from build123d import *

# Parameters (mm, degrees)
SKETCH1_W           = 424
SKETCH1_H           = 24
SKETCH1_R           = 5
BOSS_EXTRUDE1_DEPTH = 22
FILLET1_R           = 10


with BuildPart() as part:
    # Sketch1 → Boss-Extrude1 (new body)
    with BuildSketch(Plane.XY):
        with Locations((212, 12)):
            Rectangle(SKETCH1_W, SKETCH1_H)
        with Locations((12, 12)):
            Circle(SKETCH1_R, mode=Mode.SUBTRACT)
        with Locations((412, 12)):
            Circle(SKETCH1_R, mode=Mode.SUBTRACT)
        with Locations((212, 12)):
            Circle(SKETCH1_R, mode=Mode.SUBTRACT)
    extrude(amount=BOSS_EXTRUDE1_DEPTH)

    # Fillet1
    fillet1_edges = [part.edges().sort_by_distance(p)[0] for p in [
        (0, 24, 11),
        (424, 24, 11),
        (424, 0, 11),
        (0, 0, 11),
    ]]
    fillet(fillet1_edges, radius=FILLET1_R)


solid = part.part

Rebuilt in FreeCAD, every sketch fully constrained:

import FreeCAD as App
import Part
import Sketcher
from FreeCAD import Vector
Q = App.Units.Quantity


def edges_at(feature, points):
    """Names of the edges that pass closest to the given points."""
    edges = feature.Shape.Edges
    near = lambda p: min(range(len(edges)), key=lambda i: edges[i].distToShape(Part.Vertex(*p))[0])
    return sorted({f"Edge{near(p) + 1}" for p in points})

doc = App.newDocument("Part")
params = doc.addObject("Spreadsheet::Sheet", "Params")
for row, (alias, value) in enumerate([
    ("sketch1_diameter", "10 mm"),
    ("sketch1_width", "424 mm"),
    ("sketch1_height", "24 mm"),
    ("pad1_length", "22 mm"),
    ("fillet_radius", "10 mm"),
], start=1):
    params.set(f"A{row}", alias)
    params.set(f"B{row}", "=" + value)
    params.setAlias(f"B{row}", alias)

body = doc.addObject("PartDesign::Body", "Body")

# Sketch on XY plane
sketch1 = body.newObject("Sketcher::SketchObject", "Sketch")
sketch1.AttachmentSupport = (doc.getObject("XY_Plane"), [""])
sketch1.MapMode = "FlatFace"
sketch1.addGeometry(Part.LineSegment(Vector(0, 24, 0), Vector(0, 0, 0)), False)
sketch1.addGeometry(Part.LineSegment(Vector(0, 0, 0), Vector(424, 0, 0)), False)
sketch1.addGeometry(Part.LineSegment(Vector(424, 0, 0), Vector(424, 24, 0)), False)
sketch1.addGeometry(Part.LineSegment(Vector(424, 24, 0), Vector(0, 24, 0)), False)
sketch1.addGeometry(Part.Circle(Vector(12, 12, 0), Vector(0, 0, 1), 5), False)
sketch1.addGeometry(Part.Circle(Vector(212, 12, 0), Vector(0, 0, 1), 5), False)
sketch1.addGeometry(Part.Circle(Vector(412, 12, 0), Vector(0, 0, 1), 5), False)
sketch1.addConstraint(Sketcher.Constraint("Coincident", 0, 2, 1, 1))
sketch1.addConstraint(Sketcher.Constraint("Coincident", 1, 2, 2, 1))
sketch1.addConstraint(Sketcher.Constraint("Coincident", 2, 2, 3, 1))
sketch1.addConstraint(Sketcher.Constraint("Coincident", 3, 2, 0, 1))
sketch1.addConstraint(Sketcher.Constraint("Vertical", 0))
sketch1.addConstraint(Sketcher.Constraint("Horizontal", 1))
sketch1.addConstraint(Sketcher.Constraint("Vertical", 2))
sketch1.addConstraint(Sketcher.Constraint("Horizontal", 3))
sketch1.addConstraint(Sketcher.Constraint("Coincident", 0, 2, -1, 1))
sketch1.addConstraint(Sketcher.Constraint("Equal", 4, 5))
sketch1.addConstraint(Sketcher.Constraint("Equal", 5, 6))
sketch1.addConstraint(Sketcher.Constraint("Horizontal", 4, 3, 5, 3))
sketch1.addConstraint(Sketcher.Constraint("Horizontal", 5, 3, 6, 3))
sketch1.addConstraint(Sketcher.Constraint("Diameter", 4, Q("10 mm")))
sketch1.addConstraint(Sketcher.Constraint("DistanceX", 1, 1, 1, 2, Q("424 mm")))
sketch1.addConstraint(Sketcher.Constraint("DistanceY", 0, 2, 0, 1, Q("24 mm")))
sketch1.addConstraint(Sketcher.Constraint("DistanceX", -1, 1, 4, 3, Q("12 mm")))
sketch1.addConstraint(Sketcher.Constraint("DistanceY", -1, 1, 4, 3, Q("12 mm")))
sketch1.addConstraint(Sketcher.Constraint("DistanceX", -1, 1, 5, 3, Q("212 mm")))
sketch1.addConstraint(Sketcher.Constraint("DistanceX", -1, 1, 6, 3, Q("412 mm")))
sketch1.setExpression("Constraints[13]", "Params.sketch1_diameter")
sketch1.setExpression("Constraints[14]", "Params.sketch1_width")
sketch1.setExpression("Constraints[15]", "Params.sketch1_height")
pad1 = body.newObject("PartDesign::Pad", "Pad")
pad1.Profile = sketch1
pad1.setExpression("Length", "Params.pad1_length")
doc.recompute()

fillet = body.newObject("PartDesign::Fillet", "Fillet")
fillet.Base = (pad1, edges_at(pad1, [
    (0, 24, 11),
    (424, 24, 11),
    (424, 0, 11),
    (0, 0, 11),
]))
fillet.setExpression("Radius", "Params.fillet_radius")

doc.recompute()
